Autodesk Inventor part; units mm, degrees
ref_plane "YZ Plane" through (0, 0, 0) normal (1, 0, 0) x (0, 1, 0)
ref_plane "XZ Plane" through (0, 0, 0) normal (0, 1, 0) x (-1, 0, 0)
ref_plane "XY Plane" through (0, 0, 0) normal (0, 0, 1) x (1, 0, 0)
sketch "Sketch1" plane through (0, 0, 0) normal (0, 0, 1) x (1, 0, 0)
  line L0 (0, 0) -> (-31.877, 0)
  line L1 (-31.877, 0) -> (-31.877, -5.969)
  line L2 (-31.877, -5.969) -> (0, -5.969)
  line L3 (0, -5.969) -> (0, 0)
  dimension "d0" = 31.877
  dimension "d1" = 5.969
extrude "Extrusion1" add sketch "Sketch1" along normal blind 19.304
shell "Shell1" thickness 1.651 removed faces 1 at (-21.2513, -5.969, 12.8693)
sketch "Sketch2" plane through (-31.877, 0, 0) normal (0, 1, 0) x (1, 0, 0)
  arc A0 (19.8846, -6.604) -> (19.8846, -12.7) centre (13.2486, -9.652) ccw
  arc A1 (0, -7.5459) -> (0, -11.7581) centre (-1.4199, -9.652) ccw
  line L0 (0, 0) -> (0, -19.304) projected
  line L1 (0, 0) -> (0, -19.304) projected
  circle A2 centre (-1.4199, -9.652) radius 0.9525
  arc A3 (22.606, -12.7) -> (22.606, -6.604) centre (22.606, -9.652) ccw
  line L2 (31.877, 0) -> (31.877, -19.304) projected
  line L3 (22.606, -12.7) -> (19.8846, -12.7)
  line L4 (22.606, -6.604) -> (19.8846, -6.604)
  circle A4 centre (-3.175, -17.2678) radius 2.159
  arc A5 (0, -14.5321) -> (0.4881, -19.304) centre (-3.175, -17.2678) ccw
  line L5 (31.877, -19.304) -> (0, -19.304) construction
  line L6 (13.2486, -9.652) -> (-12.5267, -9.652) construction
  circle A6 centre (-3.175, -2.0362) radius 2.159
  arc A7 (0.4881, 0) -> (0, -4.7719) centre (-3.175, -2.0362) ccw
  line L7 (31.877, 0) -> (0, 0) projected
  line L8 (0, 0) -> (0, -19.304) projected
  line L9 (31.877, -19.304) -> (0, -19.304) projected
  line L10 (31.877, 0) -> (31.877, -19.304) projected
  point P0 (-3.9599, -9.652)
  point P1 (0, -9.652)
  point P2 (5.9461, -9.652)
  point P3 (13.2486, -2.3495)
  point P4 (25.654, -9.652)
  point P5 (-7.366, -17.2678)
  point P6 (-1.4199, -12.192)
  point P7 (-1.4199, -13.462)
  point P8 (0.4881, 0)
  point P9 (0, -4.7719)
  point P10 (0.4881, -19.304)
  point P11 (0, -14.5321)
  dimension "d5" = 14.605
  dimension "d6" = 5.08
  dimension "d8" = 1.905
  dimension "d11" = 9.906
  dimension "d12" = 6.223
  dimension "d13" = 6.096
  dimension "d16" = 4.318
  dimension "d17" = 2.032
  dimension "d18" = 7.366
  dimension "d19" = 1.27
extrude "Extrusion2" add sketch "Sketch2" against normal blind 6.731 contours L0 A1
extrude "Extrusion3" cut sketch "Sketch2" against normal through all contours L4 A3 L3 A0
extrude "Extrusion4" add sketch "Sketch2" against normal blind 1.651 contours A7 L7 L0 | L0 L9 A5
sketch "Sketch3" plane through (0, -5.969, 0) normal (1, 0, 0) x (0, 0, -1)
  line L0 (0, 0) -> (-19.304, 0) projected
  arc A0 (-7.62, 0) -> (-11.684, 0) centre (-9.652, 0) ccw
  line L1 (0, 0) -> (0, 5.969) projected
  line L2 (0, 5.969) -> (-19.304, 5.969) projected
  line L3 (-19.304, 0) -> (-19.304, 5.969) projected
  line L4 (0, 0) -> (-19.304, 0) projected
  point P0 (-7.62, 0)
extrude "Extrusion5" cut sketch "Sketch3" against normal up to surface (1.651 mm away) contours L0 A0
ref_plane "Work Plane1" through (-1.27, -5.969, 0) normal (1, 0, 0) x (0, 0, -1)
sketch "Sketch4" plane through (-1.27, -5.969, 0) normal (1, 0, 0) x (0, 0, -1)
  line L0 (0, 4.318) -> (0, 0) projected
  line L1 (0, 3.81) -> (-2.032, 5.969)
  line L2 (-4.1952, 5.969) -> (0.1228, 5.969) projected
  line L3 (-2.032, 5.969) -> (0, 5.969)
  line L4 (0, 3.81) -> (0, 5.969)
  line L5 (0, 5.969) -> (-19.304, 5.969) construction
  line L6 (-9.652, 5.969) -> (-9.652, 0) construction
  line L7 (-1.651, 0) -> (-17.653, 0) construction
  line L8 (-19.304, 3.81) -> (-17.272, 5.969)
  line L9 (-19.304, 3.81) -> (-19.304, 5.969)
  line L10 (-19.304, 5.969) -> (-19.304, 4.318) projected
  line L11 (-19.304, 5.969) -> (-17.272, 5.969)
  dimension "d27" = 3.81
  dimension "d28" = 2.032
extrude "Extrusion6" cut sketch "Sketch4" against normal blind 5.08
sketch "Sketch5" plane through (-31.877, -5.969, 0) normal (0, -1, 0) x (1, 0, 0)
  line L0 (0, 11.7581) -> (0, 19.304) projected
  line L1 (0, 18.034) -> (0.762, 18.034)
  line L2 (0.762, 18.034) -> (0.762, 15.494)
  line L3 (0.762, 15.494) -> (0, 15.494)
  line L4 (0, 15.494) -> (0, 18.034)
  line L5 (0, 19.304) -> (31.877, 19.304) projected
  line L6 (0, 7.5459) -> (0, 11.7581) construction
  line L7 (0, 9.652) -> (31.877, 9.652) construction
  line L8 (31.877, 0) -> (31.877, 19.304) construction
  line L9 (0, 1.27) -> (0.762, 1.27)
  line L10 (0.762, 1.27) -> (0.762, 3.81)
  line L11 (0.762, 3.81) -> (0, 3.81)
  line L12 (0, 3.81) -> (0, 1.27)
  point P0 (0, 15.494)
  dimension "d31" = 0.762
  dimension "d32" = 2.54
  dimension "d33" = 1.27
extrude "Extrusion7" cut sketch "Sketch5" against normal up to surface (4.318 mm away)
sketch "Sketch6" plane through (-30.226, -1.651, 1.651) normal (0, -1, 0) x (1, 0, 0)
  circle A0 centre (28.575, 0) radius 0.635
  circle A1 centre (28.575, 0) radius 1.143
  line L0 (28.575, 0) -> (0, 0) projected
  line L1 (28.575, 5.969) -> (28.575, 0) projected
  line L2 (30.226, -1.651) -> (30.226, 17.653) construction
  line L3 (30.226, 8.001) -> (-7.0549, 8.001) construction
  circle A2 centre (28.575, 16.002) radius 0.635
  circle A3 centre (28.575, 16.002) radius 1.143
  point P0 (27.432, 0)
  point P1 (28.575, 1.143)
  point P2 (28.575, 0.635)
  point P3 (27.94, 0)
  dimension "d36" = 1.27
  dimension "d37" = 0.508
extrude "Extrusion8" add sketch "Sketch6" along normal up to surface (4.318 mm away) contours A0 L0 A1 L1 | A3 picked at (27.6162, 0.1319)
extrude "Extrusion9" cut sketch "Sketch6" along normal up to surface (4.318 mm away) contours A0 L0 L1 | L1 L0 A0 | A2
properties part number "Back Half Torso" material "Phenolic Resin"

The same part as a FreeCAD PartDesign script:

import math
import FreeCAD as App
import Part
import Sketcher
from FreeCAD import Vector
Q = App.Units.Quantity


def faces_at(feature, points):
    """Names of the faces that lie closest to the given points."""
    faces = feature.Shape.Faces
    near = lambda p: min(range(len(faces)), key=lambda i: faces[i].distToShape(Part.Vertex(*p))[0])
    return sorted({f"Face{near(p) + 1}" for p in points})

doc = App.newDocument("Part")
body = doc.addObject("PartDesign::Body", "Body")

# Sketch on XY plane
sketch1 = body.newObject("Sketcher::SketchObject", "Sketch")
sketch1.AttachmentSupport = (doc.getObject("XY_Plane"), [""])
sketch1.MapMode = "FlatFace"
sketch1.addGeometry([
    Part.LineSegment(Vector(0, -6, 0), Vector(0, 0, 0)),
    Part.LineSegment(Vector(0, 0, 0), Vector(-32, 0, 0)),
    Part.LineSegment(Vector(-32, 0, 0), Vector(-32, -6, 0)),
    Part.LineSegment(Vector(-32, -6, 0), Vector(0, -6, 0)),
], False)
sketch1.addConstraint([
    Sketcher.Constraint("Coincident", 0, 2, 1, 1),
    Sketcher.Constraint("Coincident", 1, 2, 2, 1),
    Sketcher.Constraint("Coincident", 2, 2, 3, 1),
    Sketcher.Constraint("Coincident", 3, 2, 0, 1),
    Sketcher.Constraint("Vertical", 0),
    Sketcher.Constraint("Horizontal", 1),
    Sketcher.Constraint("Vertical", 2),
    Sketcher.Constraint("Horizontal", 3),
    Sketcher.Constraint("Coincident", 0, 2, -1, 1),
    Sketcher.Constraint("DistanceX", 1, 2, 1, 1, Q("1.255 in")),
    Sketcher.Constraint("DistanceY", 0, 1, 0, 2, Q("0.235 in")),
])
pad1 = body.newObject("PartDesign::Pad", "Pad")
pad1.Profile = sketch1
pad1.Length = Q("0.76 in")
doc.recompute()

thickness = body.newObject("PartDesign::Thickness", "Thickness")
thickness.Base = (pad1, faces_at(pad1, [(-21.251, -5.969, 12.869)]))
thickness.Value = Q("0.065 in")
thickness.Reversed = True
thickness.Join = "Intersection"

# Sketch on XZ plane
sketch2 = body.newObject("Sketcher::SketchObject", "Sketch001")
sketch2.AttachmentSupport = (doc.getObject("XZ_Plane"), [""])
sketch2.MapMode = "FlatFace"
sketch2.addGeometry([
    Part.LineSegment(Vector(-31.9, 11.8, 0), Vector(-31.9, 7.5, 0)),
    Part.ArcOfCircle(Part.Circle(Vector(-33.3, 9.7, 0), Vector(0, 0, 1), 2.5), math.radians(56), math.radians(304)),
    Part.Circle(Vector(-33.3, 9.7, 0), Vector(0, 0, 1), 1),
], False)
sketch2.addConstraint([
    Sketcher.Constraint("Coincident", 0, 1, 1, 1),
    Sketcher.Constraint("Coincident", 1, 2, 0, 2),
    Sketcher.Constraint("Vertical", 0),
    Sketcher.Constraint("Coincident", 2, 3, 1, 3),
    Sketcher.Constraint("Radius", 1, Q("0.1 in")),
    Sketcher.Constraint("Diameter", 2, Q("0.075 in")),
    Sketcher.Constraint("DistanceY", -1, 1, 1, 3, Q("0.38 in")),
    Sketcher.Constraint("DistanceX", 0, 1, -1, 1, Q("1.255 in")),
    Sketcher.Constraint("DistanceY", 0, 2, 0, 1, Q("4.2122 mm")),
])
pad2 = body.newObject("PartDesign::Pad", "Pad001")
pad2.Profile = sketch2
pad2.Length = Q("0.265 in")

# Sketch on XZ plane
sketch3 = body.newObject("Sketcher::SketchObject", "Sketch002")
sketch3.AttachmentSupport = (doc.getObject("XZ_Plane"), [""])
sketch3.MapMode = "FlatFace"
sketch3.addGeometry([
    Part.LineSegment(Vector(-9.3, 6.6, 0), Vector(-12, 6.6, 0)),
    Part.ArcOfCircle(Part.Circle(Vector(-18.6, 9.7, 0), Vector(0, 0, 1), 7.3), math.radians(25), math.radians(335)),
    Part.LineSegment(Vector(-12, 12.7, 0), Vector(-9.3, 12.7, 0)),
    Part.ArcOfCircle(Part.Circle(Vector(-9.3, 9.7, 0), Vector(0, 0, 1), 3), math.radians(-90), math.radians(90)),
], False)
sketch3.addConstraint([
    Sketcher.Constraint("Coincident", 0, 2, 1, 2),
    Sketcher.Constraint("Coincident", 1, 1, 2, 1),
    Sketcher.Constraint("Tangent", 2, 2, 3, 2),
    Sketcher.Constraint("Tangent", 3, 1, 0, 1),
    Sketcher.Constraint("Horizontal", 0),
    Sketcher.Constraint("Horizontal", 2),
    Sketcher.Constraint("Horizontal", 1, 3, 3, 3),
    Sketcher.Constraint("Radius", 3, Q("0.12 in")),
    Sketcher.Constraint("Radius", 1, Q("0.2875 in")),
    Sketcher.Constraint("DistanceY", -1, 1, 1, 1, Q("0.5 in")),
    Sketcher.Constraint("DistanceX", 3, 3, -1, 1, Q("0.365 in")),
    Sketcher.Constraint("DistanceX", 0, 2, 0, 1, Q("2.7214 mm")),
])
pocket1 = body.newObject("PartDesign::Pocket", "Pocket")
pocket1.Profile = sketch3
pocket1.Type = "ThroughAll"
pocket1.Reversed = True

# Sketch on XZ plane
sketch4 = body.newObject("Sketcher::SketchObject", "Sketch003")
sketch4.AttachmentSupport = (doc.getObject("XZ_Plane"), [""])
sketch4.MapMode = "FlatFace"
sketch4.addGeometry([
    Part.ArcOfCircle(Part.Circle(Vector(-35.05, 2.04, 0), Vector(0, 0, 1), 4.19), math.radians(41), math.radians(331)),  # 0
    Part.LineSegment(Vector(-31.88, 4.77, 0), Vector(-31.88, 0, 0)),  # 1
    Part.LineSegment(Vector(-31.88, 0, 0), Vector(-31.39, 0, 0)),  # 2
    Part.Circle(Vector(-35.05, 2.04, 0), Vector(0, 0, 1), 2.16),  # 3
    Part.LineSegment(Vector(-31.88, 19.3, 0), Vector(-31.88, 14.53, 0)),  # 4
    Part.ArcOfCircle(Part.Circle(Vector(-35.05, 17.27, 0), Vector(0, 0, 1), 4.19), math.radians(29), math.radians(319)),  # 5
    Part.LineSegment(Vector(-31.39, 19.3, 0), Vector(-31.88, 19.3, 0)),  # 6
    Part.Circle(Vector(-35.05, 17.27, 0), Vector(0, 0, 1), 2.16),  # 7
], False)
sketch4.addConstraint([
    Sketcher.Constraint("Coincident", 0, 1, 1, 1),
    Sketcher.Constraint("Coincident", 1, 2, 2, 1),
    Sketcher.Constraint("Coincident", 2, 2, 0, 2),
    Sketcher.Constraint("Coincident", 4, 2, 5, 2),
    Sketcher.Constraint("Coincident", 5, 1, 6, 1),
    Sketcher.Constraint("Coincident", 6, 2, 4, 1),
    Sketcher.Constraint("Vertical", 1),
    Sketcher.Constraint("Horizontal", 2),
    Sketcher.Constraint("Vertical", 4),
    Sketcher.Constraint("Horizontal", 6),
    Sketcher.Constraint("Coincident", 3, 3, 0, 3),
    Sketcher.Constraint("Coincident", 7, 3, 5, 3),
    Sketcher.Constraint("Equal", 0, 5),
    Sketcher.Constraint("Equal", 3, 7),
    Sketcher.Constraint("PointOnObject", 1, 2, -1),
    Sketcher.Constraint("Vertical", 3, 3, 5, 3),
    Sketcher.Constraint("Vertical", 1, 2, 4, 2),
    Sketcher.Constraint("Vertical", 2, 2, 5, 1),
    Sketcher.Constraint("Diameter", 3, Q("0.17 in")),
    Sketcher.Constraint("Radius", 0, Q("0.165 in")),
    Sketcher.Constraint("DistanceX", 0, 3, -1, 1, Q("1.38 in")),
    Sketcher.Constraint("DistanceY", -1, 1, 5, 1, Q("0.76 in")),
    Sketcher.Constraint("DistanceX", 0, 1, -1, 1, Q("1.255 in")),
    Sketcher.Constraint("DistanceX", 2, 1, 2, 2, Q("0.488 mm")),
])
pad3 = body.newObject("PartDesign::Pad", "Pad002")
pad3.Profile = sketch4
pad3.Length = Q("0.065 in")

# Sketch on YZ plane
sketch5 = body.newObject("Sketcher::SketchObject", "Sketch004")
sketch5.AttachmentSupport = (doc.getObject("YZ_Plane"), [""])
sketch5.MapMode = "FlatFace"
sketch5.addGeometry([
    Part.LineSegment(Vector(-6, 11.7, 0), Vector(-6, 7.6, 0)),
    Part.ArcOfCircle(Part.Circle(Vector(-6, 9.7, 0), Vector(0, 0, 1), 2), math.radians(-90), math.radians(90)),
], False)
sketch5.addConstraint([
    Sketcher.Constraint("Coincident", 0, 1, 1, 2),
    Sketcher.Constraint("Coincident", 1, 1, 0, 2),
    Sketcher.Constraint("Vertical", 0),
    Sketcher.Constraint("Vertical", 1, 3, 0, 1),
    Sketcher.Constraint("Radius", 1, Q("0.08 in")),
    Sketcher.Constraint("DistanceY", -1, 1, 1, 1, Q("0.3 in")),
    Sketcher.Constraint("DistanceX", 1, 3, -1, 1, Q("0.235 in")),
])
pocket2 = body.newObject("PartDesign::Pocket", "Pocket001")
pocket2.Profile = sketch5
pocket2.Length = Q("0.065 in")

# Sketch on YZ plane
sketch6 = body.newObject("Sketcher::SketchObject", "Sketch005")
sketch6.AttachmentSupport = (doc.getObject("YZ_Plane"), [""])
sketch6.MapMode = "FlatFace"
sketch6.AttachmentOffset = App.Placement(Vector(0, 0, -0.05 * 25.4), App.Rotation())
sketch6.addGeometry([
    Part.LineSegment(Vector(-2.2, 0, 0), Vector(0, 0, 0)),  # 0
    Part.LineSegment(Vector(0, 0, 0), Vector(0, 2, 0)),  # 1
    Part.LineSegment(Vector(0, 2, 0), Vector(-2.2, 0, 0)),  # 2
    Part.LineSegment(Vector(0, 19.3, 0), Vector(-2.2, 19.3, 0)),  # 3
    Part.LineSegment(Vector(-2.2, 19.3, 0), Vector(0, 17.3, 0)),  # 4
    Part.LineSegment(Vector(0, 17.3, 0), Vector(0, 19.3, 0)),  # 5
], False)
sketch6.addConstraint([
    Sketcher.Constraint("Coincident", 0, 2, 1, 1),
    Sketcher.Constraint("Coincident", 1, 2, 2, 1),
    Sketcher.Constraint("Coincident", 2, 2, 0, 1),
    Sketcher.Constraint("Coincident", 3, 2, 4, 1),
    Sketcher.Constraint("Coincident", 4, 2, 5, 1),
    Sketcher.Constraint("Coincident", 5, 2, 3, 1),
    Sketcher.Constraint("Horizontal", 0),
    Sketcher.Constraint("Vertical", 1),
    Sketcher.Constraint("Horizontal", 3),
    Sketcher.Constraint("Vertical", 5),
    Sketcher.Constraint("Coincident", 0, 2, -1, 1),
    Sketcher.Constraint("PointOnObject", 4, 2, -2),
    Sketcher.Constraint("Vertical", 2, 2, 3, 2),
    Sketcher.Constraint("Equal", 1, 5),
    Sketcher.Constraint("DistanceY", 1, 1, 1, 2, Q("0.08 in")),
    Sketcher.Constraint("DistanceY", 1, 2, 4, 2, Q("0.6 in")),
    Sketcher.Constraint("DistanceX", 0, 1, 0, 2, Q("0.085 in")),
])
pocket3 = body.newObject("PartDesign::Pocket", "Pocket002")
pocket3.Profile = sketch6
pocket3.Length = Q("0.2 in")

# Sketch on XZ plane
sketch7 = body.newObject("Sketcher::SketchObject", "Sketch006")
sketch7.AttachmentSupport = (doc.getObject("XZ_Plane"), [""])
sketch7.MapMode = "FlatFace"
sketch7.AttachmentOffset = App.Placement(Vector(0, 0, 0.235 * 25.4), App.Rotation())
sketch7.addGeometry([
    Part.LineSegment(Vector(-31.9, 18, 0), Vector(-31.9, 15.5, 0)),  # 0
    Part.LineSegment(Vector(-31.9, 15.5, 0), Vector(-31.1, 15.5, 0)),  # 1
    Part.LineSegment(Vector(-31.1, 15.5, 0), Vector(-31.1, 18, 0)),  # 2
    Part.LineSegment(Vector(-31.1, 18, 0), Vector(-31.9, 18, 0)),  # 3
    Part.LineSegment(Vector(-31.9, 3.8, 0), Vector(-31.9, 1.3, 0)),  # 4
    Part.LineSegment(Vector(-31.9, 1.3, 0), Vector(-31.1, 1.3, 0)),  # 5
    Part.LineSegment(Vector(-31.1, 1.3, 0), Vector(-31.1, 3.8, 0)),  # 6
    Part.LineSegment(Vector(-31.1, 3.8, 0), Vector(-31.9, 3.8, 0)),  # 7
], False)
sketch7.addConstraint([
    Sketcher.Constraint("Coincident", 0, 2, 1, 1),
    Sketcher.Constraint("Coincident", 1, 2, 2, 1),
    Sketcher.Constraint("Coincident", 2, 2, 3, 1),
    Sketcher.Constraint("Coincident", 3, 2, 0, 1),
    Sketcher.Constraint("Coincident", 4, 2, 5, 1),
    Sketcher.Constraint("Coincident", 5, 2, 6, 1),
    Sketcher.Constraint("Coincident", 6, 2, 7, 1),
    Sketcher.Constraint("Coincident", 7, 2, 4, 1),
    Sketcher.Constraint("Vertical", 0),
    Sketcher.Constraint("Horizontal", 1),
    Sketcher.Constraint("Vertical", 2),
    Sketcher.Constraint("Horizontal", 3),
    Sketcher.Constraint("Vertical", 4),
    Sketcher.Constraint("Horizontal", 5),
    Sketcher.Constraint("Vertical", 6),
    Sketcher.Constraint("Horizontal", 7),
    Sketcher.Constraint("Vertical", 3, 2, 4, 2),
    Sketcher.Constraint("Vertical", 2, 2, 5, 2),
    Sketcher.Constraint("Equal", 2, 4),
    Sketcher.Constraint("DistanceY", 0, 2, 0, 1, Q("0.1 in")),
    Sketcher.Constraint("DistanceX", 1, 1, 1, 2, Q("0.03 in")),
    Sketcher.Constraint("DistanceY", -1, 1, 4, 2, Q("0.05 in")),
    Sketcher.Constraint("DistanceY", -1, 1, 0, 2, Q("0.61 in")),
    Sketcher.Constraint("DistanceX", 0, 2, -1, 1, Q("1.255 in")),
])
pocket4 = body.newObject("PartDesign::Pocket", "Pocket003")
pocket4.Profile = sketch7
pocket4.Length = Q("0.17 in")

# Sketch on XZ plane
sketch8 = body.newObject("Sketcher::SketchObject", "Sketch007")
sketch8.AttachmentSupport = (doc.getObject("XZ_Plane"), [""])
sketch8.MapMode = "FlatFace"
sketch8.AttachmentOffset = App.Placement(Vector(0, 0, 0.065 * 25.4), App.Rotation())
sketch8.addGeometry([
    Part.ArcOfCircle(Part.Circle(Vector(-1.7, 1.7, 0), Vector(0, 0, 1), 0.6), math.radians(90), math.radians(180)),  # 0
    Part.LineSegment(Vector(-1.7, 2.3, 0), Vector(-1.7, 2.8, 0)),  # 1
    Part.ArcOfCircle(Part.Circle(Vector(-1.7, 1.7, 0), Vector(0, 0, 1), 1.1), math.radians(90), math.radians(180)),  # 2
    Part.LineSegment(Vector(-2.8, 1.7, 0), Vector(-2.3, 1.7, 0)),  # 3
    Part.Circle(Vector(-1.7, 17.7, 0), Vector(0, 0, 1), 1.1),  # 4
    Part.Circle(Vector(-1.7, 17.7, 0), Vector(0, 0, 1), 0.6),  # 5
], False)
sketch8.addConstraint([
    Sketcher.Constraint("Coincident", 0, 1, 1, 1),
    Sketcher.Constraint("Coincident", 1, 2, 2, 1),
    Sketcher.Constraint("Coincident", 2, 2, 3, 1),
    Sketcher.Constraint("Coincident", 3, 2, 0, 2),
    Sketcher.Constraint("Vertical", 1),
    Sketcher.Constraint("Horizontal", 3),
    Sketcher.Constraint("Coincident", 2, 3, 0, 3),
    Sketcher.Constraint("Coincident", 5, 3, 4, 3),
    Sketcher.Constraint("Equal", 2, 4),
    Sketcher.Constraint("Equal", 0, 5),
    Sketcher.Constraint("Horizontal", 0, 3, 2, 2),
    Sketcher.Constraint("Vertical", 2, 3, 4, 3),
    Sketcher.Constraint("Vertical", 5, 3, 0, 1),
    Sketcher.Constraint("Diameter", 5, Q("0.05 in")),
    Sketcher.Constraint("DistanceX", 3, 1, 3, 2, Q("0.02 in")),
    Sketcher.Constraint("DistanceY", -1, 1, 0, 1, Q("0.09 in")),
    Sketcher.Constraint("DistanceX", 2, 2, -1, 1, Q("0.11 in")),
    Sketcher.Constraint("DistanceY", 0, 3, 4, 3, Q("0.63 in")),
])
pad4 = body.newObject("PartDesign::Pad", "Pad003")
pad4.Profile = sketch8
pad4.Length = Q("0.17 in")

# Sketch on XZ plane
sketch9 = body.newObject("Sketcher::SketchObject", "Sketch008")
sketch9.AttachmentSupport = (doc.getObject("XZ_Plane"), [""])
sketch9.MapMode = "FlatFace"
sketch9.AttachmentOffset = App.Placement(Vector(0, 0, 0.065 * 25.4), App.Rotation())
sketch9.addGeometry([
    Part.Circle(Vector(-1.7, 1.7, 0), Vector(0, 0, 1), 0.6),
    Part.Circle(Vector(-1.7, 17.7, 0), Vector(0, 0, 1), 0.6),
], False)
sketch9.addConstraint([
    Sketcher.Constraint("Equal", 0, 1),
    Sketcher.Constraint("Vertical", 0, 3, 1, 3),
    Sketcher.Constraint("Diameter", 0, Q("0.05 in")),
    Sketcher.Constraint("DistanceY", 0, 3, 1, 3, Q("0.63 in")),
    Sketcher.Constraint("DistanceX", 0, 3, -1, 1, Q("0.065 in")),
    Sketcher.Constraint("DistanceY", -1, 1, 0, 3, Q("0.065 in")),
])
pocket5 = body.newObject("PartDesign::Pocket", "Pocket004")
pocket5.Profile = sketch9
pocket5.Length = Q("0.17 in")
pocket5.Reversed = True

doc.recompute()
